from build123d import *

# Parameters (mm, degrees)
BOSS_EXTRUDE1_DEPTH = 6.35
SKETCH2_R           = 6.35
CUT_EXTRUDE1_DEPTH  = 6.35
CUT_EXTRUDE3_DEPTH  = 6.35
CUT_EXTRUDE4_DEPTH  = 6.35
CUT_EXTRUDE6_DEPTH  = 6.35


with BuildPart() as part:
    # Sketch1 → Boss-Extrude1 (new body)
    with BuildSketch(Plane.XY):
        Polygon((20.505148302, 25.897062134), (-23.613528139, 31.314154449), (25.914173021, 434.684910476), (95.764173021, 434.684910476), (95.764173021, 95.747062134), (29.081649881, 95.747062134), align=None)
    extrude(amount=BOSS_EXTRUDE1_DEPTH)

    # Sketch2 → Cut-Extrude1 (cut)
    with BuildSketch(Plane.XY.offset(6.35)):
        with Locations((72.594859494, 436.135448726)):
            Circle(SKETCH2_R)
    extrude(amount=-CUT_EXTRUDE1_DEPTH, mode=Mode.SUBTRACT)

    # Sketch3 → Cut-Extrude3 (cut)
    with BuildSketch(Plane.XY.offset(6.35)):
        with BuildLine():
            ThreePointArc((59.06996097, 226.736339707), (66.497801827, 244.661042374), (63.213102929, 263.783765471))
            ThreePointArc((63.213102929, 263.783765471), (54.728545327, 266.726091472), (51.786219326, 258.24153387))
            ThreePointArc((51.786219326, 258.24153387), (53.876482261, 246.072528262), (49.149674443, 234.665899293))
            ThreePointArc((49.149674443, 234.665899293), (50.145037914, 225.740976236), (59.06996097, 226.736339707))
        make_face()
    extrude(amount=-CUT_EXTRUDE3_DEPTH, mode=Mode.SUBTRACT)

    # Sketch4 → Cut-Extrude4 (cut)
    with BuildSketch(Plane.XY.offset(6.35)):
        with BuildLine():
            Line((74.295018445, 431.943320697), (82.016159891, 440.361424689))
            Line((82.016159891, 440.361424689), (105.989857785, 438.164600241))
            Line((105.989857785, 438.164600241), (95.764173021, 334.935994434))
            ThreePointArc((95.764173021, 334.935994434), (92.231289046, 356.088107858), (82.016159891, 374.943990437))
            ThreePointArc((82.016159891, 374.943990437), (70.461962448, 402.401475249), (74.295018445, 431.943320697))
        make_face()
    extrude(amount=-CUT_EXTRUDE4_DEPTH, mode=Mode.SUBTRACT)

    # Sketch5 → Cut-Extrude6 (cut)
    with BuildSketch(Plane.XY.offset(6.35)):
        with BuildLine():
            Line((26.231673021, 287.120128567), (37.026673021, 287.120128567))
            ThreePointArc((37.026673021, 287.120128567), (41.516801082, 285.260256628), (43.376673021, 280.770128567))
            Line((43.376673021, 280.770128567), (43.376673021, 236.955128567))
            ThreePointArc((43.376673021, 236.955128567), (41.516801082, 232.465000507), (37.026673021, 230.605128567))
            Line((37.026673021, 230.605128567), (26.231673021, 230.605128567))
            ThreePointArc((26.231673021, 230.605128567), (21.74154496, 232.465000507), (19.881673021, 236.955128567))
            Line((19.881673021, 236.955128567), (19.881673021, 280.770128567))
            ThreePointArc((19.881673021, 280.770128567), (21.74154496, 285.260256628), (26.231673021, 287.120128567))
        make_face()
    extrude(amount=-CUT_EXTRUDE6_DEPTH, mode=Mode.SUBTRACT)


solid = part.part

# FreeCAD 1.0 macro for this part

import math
import FreeCAD as App
import Part
import Sketcher
from FreeCAD import Vector
Q = App.Units.Quantity


def add_polygon(sketch, points):
    """Adds a closed chain of lines whose ends are joined by coincident constraints."""
    first, n = sketch.GeometryCount, len(points)
    for a, b in zip(points, points[1:] + points[:1]):
        sketch.addGeometry(Part.LineSegment(App.Vector(*a, 0), App.Vector(*b, 0)), False)
    for i in range(n):
        sketch.addConstraint(Sketcher.Constraint("Coincident", first + i, 2, first + (i + 1) % n, 1))

doc = App.newDocument("Part")
body = doc.addObject("PartDesign::Body", "Body")

sketch1 = doc.addObject("Sketcher::SketchObject", "Sketch")
body.addObject(sketch1)
sketch1.AttachmentSupport = (doc.XY_Plane, [""])
sketch1.MapMode = "FlatFace"
add_polygon(sketch1, [(-24, 31), (21, 26), (29, 96), (96, 96), (96, 435), (26, 435)])
sketch1.addConstraint(Sketcher.Constraint("Horizontal", 2))
sketch1.addConstraint(Sketcher.Constraint("Vertical", 3))
sketch1.addConstraint(Sketcher.Constraint("Horizontal", 4))
sketch1.addConstraint(Sketcher.Constraint("Perpendicular", 0, 1))
sketch1.addConstraint(Sketcher.Constraint("Parallel", 1, 5))
sketch1.addConstraint(Sketcher.Constraint("Distance", 5, Q("16 in")))
sketch1.addConstraint(Sketcher.Constraint("Angle", 0, Q("-7 deg")))
sketch1.addConstraint(Sketcher.Constraint("DistanceX", 4, 2, 4, 1, Q("2.75 in")))
sketch1.addConstraint(Sketcher.Constraint("Distance", 0, Q("1.75 in")))
sketch1.addConstraint(Sketcher.Constraint("DistanceY", 0, 2, 1, 2, Q("2.75 in")))
sketch1.addConstraint(Sketcher.Constraint("DistanceX", -1, 1, 0, 2, 20.505148))
sketch1.addConstraint(Sketcher.Constraint("DistanceY", -1, 1, 3, 2, 434.68491))
pad1 = doc.addObject("PartDesign::Pad", "Pad")
body.addObject(pad1)
pad1.Profile = sketch1
pad1.Length = Q("0.25 in")

sketch2 = doc.addObject("Sketcher::SketchObject", "Sketch001")
body.addObject(sketch2)
sketch2.AttachmentSupport = (doc.XY_Plane, [""])
sketch2.MapMode = "FlatFace"
sketch2.AttachmentOffset = App.Placement(Vector(0, 0, 0.25 * 25.4), App.Rotation())
sketch2.addGeometry(Part.Circle(Vector(73, 436, 0), Vector(0, 0, 1), 6), False)
sketch2.addConstraint(Sketcher.Constraint("Diameter", 0, Q("0.5 in")))
sketch2.addConstraint(Sketcher.Constraint("DistanceX", -1, 1, 0, 3, 72.594859))
sketch2.addConstraint(Sketcher.Constraint("DistanceY", -1, 1, 0, 3, 436.135449))
pocket1 = doc.addObject("PartDesign::Pocket", "Pocket")
body.addObject(pocket1)
pocket1.Profile = sketch2
pocket1.Length = Q("0.25 in")

sketch3 = doc.addObject("Sketcher::SketchObject", "Sketch002")
body.addObject(sketch3)
sketch3.AttachmentSupport = (doc.XY_Plane, [""])
sketch3.MapMode = "FlatFace"
sketch3.AttachmentOffset = App.Placement(Vector(0, 0, 0.25 * 25.4), App.Rotation())
sketch3.addGeometry(Part.ArcOfCircle(Part.Circle(Vector(32, 249, 0), Vector(0, 0, 1), 35), math.radians(-39), math.radians(26)), False)
sketch3.addGeometry(Part.ArcOfCircle(Part.Circle(Vector(57, 261, 0), Vector(0, 0, 1), 6), math.radians(26), math.radians(206)), False)
sketch3.addGeometry(Part.ArcOfCircle(Part.Circle(Vector(32, 249, 0), Vector(0, 0, 1), 22), math.radians(-39), math.radians(26)), False)
sketch3.addGeometry(Part.ArcOfCircle(Part.Circle(Vector(54, 231, 0), Vector(0, 0, 1), 6), math.radians(141), math.radians(321)), False)
sketch3.addConstraint(Sketcher.Constraint("Tangent", 0, 2, 1, 1))
sketch3.addConstraint(Sketcher.Constraint("Tangent", 1, 2, 2, 2))
sketch3.addConstraint(Sketcher.Constraint("Tangent", 2, 1, 3, 1))
sketch3.addConstraint(Sketcher.Constraint("Tangent", 3, 2, 0, 1))
sketch3.addConstraint(Sketcher.Constraint("Coincident", 2, 3, 0, 3))
sketch3.addConstraint(Sketcher.Constraint("Radius", 1, Q("0.25 in")))
sketch3.addConstraint(Sketcher.Constraint("Radius", 0, Q("1.375 in")))
sketch3.addConstraint(Sketcher.Constraint("DistanceY", -1, 1, 2, 1, 234.665899))
sketch3.addConstraint(Sketcher.Constraint("DistanceX", 1, 2, 3, 3, 2.323598))
sketch3.addConstraint(Sketcher.Constraint("DistanceX", 2, 3, 2, 1, 17.360501))
sketch3.addConstraint(Sketcher.Constraint("DistanceX", -1, 1, 1, 3, 57.499661))
pocket2 = doc.addObject("PartDesign::Pocket", "Pocket001")
body.addObject(pocket2)
pocket2.Profile = sketch3
pocket2.Length = Q("0.25 in")

sketch4 = doc.addObject("Sketcher::SketchObject", "Sketch003")
body.addObject(sketch4)
sketch4.AttachmentSupport = (doc.XY_Plane, [""])
sketch4.MapMode = "FlatFace"
sketch4.AttachmentOffset = App.Placement(Vector(0, 0, 0.25 * 25.4), App.Rotation())
sketch4.addGeometry(Part.LineSegment(Vector(82, 440, 0), Vector(74, 432, 0)), False)
sketch4.addGeometry(Part.ArcOfCircle(Part.Circle(Vector(127, 410, 0), Vector(0, 0, 1), 57), math.radians(157), math.radians(218)), False)
sketch4.addGeometry(Part.ArcOfCircle(Part.Circle(Vector(31, 335, 0), Vector(0, 0, 1), 65), math.radians(0), math.radians(38)), False)
sketch4.addGeometry(Part.LineSegment(Vector(96, 335, 0), Vector(106, 438, 0)), False)
sketch4.addGeometry(Part.LineSegment(Vector(106, 438, 0), Vector(82, 440, 0)), False)
sketch4.addConstraint(Sketcher.Constraint("Coincident", 0, 2, 1, 1))
sketch4.addConstraint(Sketcher.Constraint("Tangent", 1, 2, 2, 2))
sketch4.addConstraint(Sketcher.Constraint("Coincident", 2, 1, 3, 1))
sketch4.addConstraint(Sketcher.Constraint("Coincident", 3, 2, 4, 1))
sketch4.addConstraint(Sketcher.Constraint("Coincident", 4, 2, 0, 1))
sketch4.addConstraint(Sketcher.Constraint("Vertical", 1, 2, 4, 2))
sketch4.addConstraint(Sketcher.Constraint("Radius", 1, Q("2.25 in")))
sketch4.addConstraint(Sketcher.Constraint("Radius", 2, Q("2.5625 in")))
sketch4.addConstraint(Sketcher.Constraint("DistanceY", -1, 1, 3, 2, 438.1646))
sketch4.addConstraint(Sketcher.Constraint("Distance", 3, 103.733841))
sketch4.addConstraint(Sketcher.Constraint("Distance", 4, 24.07414))
sketch4.addConstraint(Sketcher.Constraint("DistanceX", -1, 1, 0, 2, 74.295018))
sketch4.addConstraint(Sketcher.Constraint("DistanceY", -1, 1, 0, 2, 431.943321))
sketch4.addConstraint(Sketcher.Constraint("DistanceX", -1, 1, 1, 2, 82.01616))
sketch4.addConstraint(Sketcher.Constraint("DistanceY", -1, 1, 1, 2, 374.94399))
sketch4.addConstraint(Sketcher.Constraint("DistanceX", 0, 2, 3, 2, 31.694839))
pocket3 = doc.addObject("PartDesign::Pocket", "Pocket002")
body.addObject(pocket3)
pocket3.Profile = sketch4
pocket3.Length = Q("0.25 in")

sketch5 = doc.addObject("Sketcher::SketchObject", "Sketch004")
body.addObject(sketch5)
sketch5.AttachmentSupport = (doc.XY_Plane, [""])
sketch5.MapMode = "FlatFace"
sketch5.AttachmentOffset = App.Placement(Vector(0, 0, 0.25 * 25.4), App.Rotation())
sketch5.addGeometry(Part.LineSegment(Vector(37, 287, 0), Vector(26, 287, 0)), False)
sketch5.addGeometry(Part.ArcOfCircle(Part.Circle(Vector(26, 281, 0), Vector(0, 0, 1), 6), math.radians(90), math.radians(180)), False)
sketch5.addGeometry(Part.LineSegment(Vector(20, 281, 0), Vector(20, 237, 0)), False)
sketch5.addGeometry(Part.ArcOfCircle(Part.Circle(Vector(26, 237, 0), Vector(0, 0, 1), 6), math.radians(180), math.radians(270)), False)
sketch5.addGeometry(Part.LineSegment(Vector(26, 231, 0), Vector(37, 231, 0)), False)
sketch5.addGeometry(Part.ArcOfCircle(Part.Circle(Vector(37, 237, 0), Vector(0, 0, 1), 6), math.radians(-90), math.radians(0)), False)
sketch5.addGeometry(Part.LineSegment(Vector(43, 237, 0), Vector(43, 281, 0)), False)
sketch5.addGeometry(Part.ArcOfCircle(Part.Circle(Vector(37, 281, 0), Vector(0, 0, 1), 6), math.radians(0), math.radians(90)), False)
sketch5.addConstraint(Sketcher.Constraint("Tangent", 0, 2, 1, 1))
sketch5.addConstraint(Sketcher.Constraint("Tangent", 1, 2, 2, 1))
sketch5.addConstraint(Sketcher.Constraint("Tangent", 2, 2, 3, 1))
sketch5.addConstraint(Sketcher.Constraint("Tangent", 3, 2, 4, 1))
sketch5.addConstraint(Sketcher.Constraint("Tangent", 4, 2, 5, 1))
sketch5.addConstraint(Sketcher.Constraint("Tangent", 5, 2, 6, 1))
sketch5.addConstraint(Sketcher.Constraint("Tangent", 6, 2, 7, 1))
sketch5.addConstraint(Sketcher.Constraint("Tangent", 7, 2, 0, 1))
sketch5.addConstraint(Sketcher.Constraint("Horizontal", 0))
sketch5.addConstraint(Sketcher.Constraint("Vertical", 2))
sketch5.addConstraint(Sketcher.Constraint("Horizontal", 4))
sketch5.addConstraint(Sketcher.Constraint("Vertical", 6))
sketch5.addConstraint(Sketcher.Constraint("Equal", 1, 3))
sketch5.addConstraint(Sketcher.Constraint("Equal", 3, 5))
sketch5.addConstraint(Sketcher.Constraint("Equal", 5, 7))
sketch5.addConstraint(Sketcher.Constraint("Radius", 1, Q("0.25 in")))
sketch5.addConstraint(Sketcher.Constraint("DistanceX", 0, 2, 0, 1, Q("0.425 in")))
sketch5.addConstraint(Sketcher.Constraint("DistanceY", 2, 2, 2, 1, Q("1.725 in")))
sketch5.addConstraint(Sketcher.Constraint("DistanceY", -1, 1, 1, 3, 280.770129))
sketch5.addConstraint(Sketcher.Constraint("DistanceX", -1, 1, 1, 3, 26.231673))
pocket4 = doc.addObject("PartDesign::Pocket", "Pocket003")
body.addObject(pocket4)
pocket4.Profile = sketch5
pocket4.Length = Q("0.25 in")

doc.recompute()
